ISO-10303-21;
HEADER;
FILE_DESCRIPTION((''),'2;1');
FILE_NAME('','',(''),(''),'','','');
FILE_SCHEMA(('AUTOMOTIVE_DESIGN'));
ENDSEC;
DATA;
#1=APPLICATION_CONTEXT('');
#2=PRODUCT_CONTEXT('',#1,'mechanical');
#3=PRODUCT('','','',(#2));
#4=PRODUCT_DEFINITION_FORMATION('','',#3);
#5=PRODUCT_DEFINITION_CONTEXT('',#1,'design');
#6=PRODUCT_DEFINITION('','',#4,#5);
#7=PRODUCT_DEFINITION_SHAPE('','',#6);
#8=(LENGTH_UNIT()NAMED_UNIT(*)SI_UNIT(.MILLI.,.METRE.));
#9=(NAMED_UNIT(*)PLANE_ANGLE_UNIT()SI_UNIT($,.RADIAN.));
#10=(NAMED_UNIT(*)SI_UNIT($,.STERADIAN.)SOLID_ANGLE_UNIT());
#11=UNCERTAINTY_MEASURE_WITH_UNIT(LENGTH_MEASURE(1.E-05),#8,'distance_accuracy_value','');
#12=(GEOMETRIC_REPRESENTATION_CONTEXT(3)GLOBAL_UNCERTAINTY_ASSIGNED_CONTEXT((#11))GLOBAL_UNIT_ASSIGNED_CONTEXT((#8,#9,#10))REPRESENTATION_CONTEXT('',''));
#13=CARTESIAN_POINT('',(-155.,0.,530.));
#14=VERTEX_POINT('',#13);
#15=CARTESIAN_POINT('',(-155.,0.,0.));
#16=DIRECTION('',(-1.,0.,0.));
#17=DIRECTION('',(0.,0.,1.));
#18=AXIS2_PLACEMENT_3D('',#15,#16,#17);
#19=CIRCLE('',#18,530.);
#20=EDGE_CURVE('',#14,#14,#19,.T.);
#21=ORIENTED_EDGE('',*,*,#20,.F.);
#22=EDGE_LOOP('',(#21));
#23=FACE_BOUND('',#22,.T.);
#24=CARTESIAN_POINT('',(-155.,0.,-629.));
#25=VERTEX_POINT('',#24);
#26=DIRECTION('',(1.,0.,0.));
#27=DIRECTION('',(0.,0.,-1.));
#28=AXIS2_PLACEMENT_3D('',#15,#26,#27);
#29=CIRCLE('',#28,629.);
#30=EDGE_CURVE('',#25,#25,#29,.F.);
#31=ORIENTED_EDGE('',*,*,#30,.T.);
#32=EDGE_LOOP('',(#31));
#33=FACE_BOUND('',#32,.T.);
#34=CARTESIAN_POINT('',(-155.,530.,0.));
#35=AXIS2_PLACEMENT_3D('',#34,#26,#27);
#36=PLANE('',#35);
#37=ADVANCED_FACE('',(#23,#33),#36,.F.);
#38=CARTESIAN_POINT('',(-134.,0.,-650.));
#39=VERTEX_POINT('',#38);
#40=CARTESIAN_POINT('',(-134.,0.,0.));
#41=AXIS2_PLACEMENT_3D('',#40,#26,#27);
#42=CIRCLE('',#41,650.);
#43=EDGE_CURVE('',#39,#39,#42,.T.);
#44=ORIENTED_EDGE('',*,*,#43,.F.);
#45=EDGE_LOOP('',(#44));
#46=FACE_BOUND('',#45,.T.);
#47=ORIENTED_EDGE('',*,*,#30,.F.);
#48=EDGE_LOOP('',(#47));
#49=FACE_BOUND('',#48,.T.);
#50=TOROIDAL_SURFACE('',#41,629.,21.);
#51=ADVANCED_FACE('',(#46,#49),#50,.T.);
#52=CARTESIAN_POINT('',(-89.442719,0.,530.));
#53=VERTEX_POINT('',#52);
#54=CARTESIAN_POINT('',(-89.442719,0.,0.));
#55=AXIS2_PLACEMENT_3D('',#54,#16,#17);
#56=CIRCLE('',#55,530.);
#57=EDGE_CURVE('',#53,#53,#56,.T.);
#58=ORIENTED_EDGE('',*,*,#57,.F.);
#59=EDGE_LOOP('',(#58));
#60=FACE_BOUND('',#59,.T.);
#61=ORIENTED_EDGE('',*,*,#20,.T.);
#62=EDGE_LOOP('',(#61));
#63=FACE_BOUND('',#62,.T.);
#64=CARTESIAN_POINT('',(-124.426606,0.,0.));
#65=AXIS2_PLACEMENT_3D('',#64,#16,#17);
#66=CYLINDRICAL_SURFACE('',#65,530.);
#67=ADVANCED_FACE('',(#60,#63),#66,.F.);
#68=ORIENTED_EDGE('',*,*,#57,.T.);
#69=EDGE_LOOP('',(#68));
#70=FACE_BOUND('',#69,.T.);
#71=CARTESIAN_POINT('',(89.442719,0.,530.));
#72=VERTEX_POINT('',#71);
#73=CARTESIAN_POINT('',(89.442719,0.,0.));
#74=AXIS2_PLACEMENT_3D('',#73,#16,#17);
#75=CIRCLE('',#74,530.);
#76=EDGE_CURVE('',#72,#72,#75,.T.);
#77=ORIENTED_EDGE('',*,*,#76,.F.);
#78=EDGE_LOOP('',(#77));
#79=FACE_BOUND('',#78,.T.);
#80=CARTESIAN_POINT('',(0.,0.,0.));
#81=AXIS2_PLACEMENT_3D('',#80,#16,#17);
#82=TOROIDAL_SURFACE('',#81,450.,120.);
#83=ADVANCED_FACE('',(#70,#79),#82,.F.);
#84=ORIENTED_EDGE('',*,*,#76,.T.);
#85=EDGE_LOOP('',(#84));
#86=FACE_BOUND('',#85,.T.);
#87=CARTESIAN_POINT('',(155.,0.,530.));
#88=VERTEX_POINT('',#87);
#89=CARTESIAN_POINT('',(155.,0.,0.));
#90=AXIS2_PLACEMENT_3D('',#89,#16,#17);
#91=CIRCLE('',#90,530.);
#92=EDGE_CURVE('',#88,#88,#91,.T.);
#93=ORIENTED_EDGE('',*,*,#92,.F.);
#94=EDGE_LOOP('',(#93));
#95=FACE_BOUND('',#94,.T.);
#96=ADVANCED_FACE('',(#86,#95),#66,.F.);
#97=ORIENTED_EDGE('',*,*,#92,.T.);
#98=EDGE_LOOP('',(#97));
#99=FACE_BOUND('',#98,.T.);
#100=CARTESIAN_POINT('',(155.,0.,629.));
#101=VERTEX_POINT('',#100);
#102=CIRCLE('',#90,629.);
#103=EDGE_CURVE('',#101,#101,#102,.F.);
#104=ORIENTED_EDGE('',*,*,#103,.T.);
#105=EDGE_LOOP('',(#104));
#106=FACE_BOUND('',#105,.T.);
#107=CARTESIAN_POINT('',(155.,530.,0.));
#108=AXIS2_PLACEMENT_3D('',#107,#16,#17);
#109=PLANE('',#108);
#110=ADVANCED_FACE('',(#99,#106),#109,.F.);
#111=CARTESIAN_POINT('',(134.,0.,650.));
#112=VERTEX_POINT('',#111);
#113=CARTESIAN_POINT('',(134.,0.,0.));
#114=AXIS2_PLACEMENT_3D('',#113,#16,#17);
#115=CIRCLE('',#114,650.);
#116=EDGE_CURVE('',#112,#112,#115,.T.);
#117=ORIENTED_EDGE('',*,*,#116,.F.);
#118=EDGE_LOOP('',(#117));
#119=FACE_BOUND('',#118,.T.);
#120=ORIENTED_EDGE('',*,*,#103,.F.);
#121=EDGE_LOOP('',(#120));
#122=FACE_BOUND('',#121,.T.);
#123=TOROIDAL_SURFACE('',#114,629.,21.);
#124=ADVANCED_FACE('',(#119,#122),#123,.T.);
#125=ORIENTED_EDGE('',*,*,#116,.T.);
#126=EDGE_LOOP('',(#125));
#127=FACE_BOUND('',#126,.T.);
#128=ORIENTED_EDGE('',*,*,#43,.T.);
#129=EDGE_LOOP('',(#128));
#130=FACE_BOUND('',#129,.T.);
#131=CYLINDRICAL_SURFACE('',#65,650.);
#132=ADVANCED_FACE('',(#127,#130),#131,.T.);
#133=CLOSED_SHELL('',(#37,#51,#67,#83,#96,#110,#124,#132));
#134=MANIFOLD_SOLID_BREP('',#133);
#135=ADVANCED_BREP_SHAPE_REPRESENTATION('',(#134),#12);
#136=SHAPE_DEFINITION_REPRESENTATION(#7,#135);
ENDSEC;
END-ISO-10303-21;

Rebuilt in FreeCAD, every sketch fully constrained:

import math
import FreeCAD as App
import Part
import Sketcher
from FreeCAD import Vector


def edges_at(feature, points):
    """Names of the edges that pass closest to the given points."""
    edges = feature.Shape.Edges
    near = lambda p: min(range(len(edges)), key=lambda i: edges[i].distToShape(Part.Vertex(*p))[0])
    return sorted({f"Edge{near(p) + 1}" for p in points})

doc = App.newDocument("Part")
body = doc.addObject("PartDesign::Body", "Body")

sketch1 = body.newObject("Sketcher::SketchObject", "Sketch")
sketch1.AttachmentSupport = (doc.getObject("XY_Plane"), [""])
sketch1.MapMode = "FlatFace"
sketch1.addGeometry([
    Part.LineSegment(Vector(89.442719, 530, 0), Vector(155, 530, 0)),
    Part.LineSegment(Vector(155, 530, 0), Vector(155, 650, 0)),
    Part.LineSegment(Vector(155, 650, 0), Vector(-155, 650, 0)),
    Part.LineSegment(Vector(-155, 650, 0), Vector(-155, 530, 0)),
    Part.LineSegment(Vector(-155, 530, 0), Vector(-89.442719, 530, 0)),
    Part.ArcOfCircle(Part.Circle(Vector(0, 450, 0), Vector(0, 0, 1), 120), math.radians(41.810315), math.radians(138.189685)),
], False)
sketch1.addConstraint([
    Sketcher.Constraint("Coincident", 0, 2, 1, 1),
    Sketcher.Constraint("Coincident", 1, 2, 2, 1),
    Sketcher.Constraint("Coincident", 2, 2, 3, 1),
    Sketcher.Constraint("Coincident", 3, 2, 4, 1),
    Sketcher.Constraint("Coincident", 4, 2, 5, 2),
    Sketcher.Constraint("Coincident", 5, 1, 0, 1),
    Sketcher.Constraint("Horizontal", 0),
    Sketcher.Constraint("Vertical", 1),
    Sketcher.Constraint("Horizontal", 2),
    Sketcher.Constraint("Vertical", 3),
    Sketcher.Constraint("Horizontal", 4),
    Sketcher.Constraint("Symmetric", 0, 2, 3, 2, -2),
    Sketcher.Constraint("PointOnObject", 5, 3, -2),
    Sketcher.Constraint("Radius", 5, 120.0),
    Sketcher.Constraint("DistanceX", 2, 2, 2, 1, 310.0),
    Sketcher.Constraint("DistanceY", 1, 1, 1, 2, 120.0),
    Sketcher.Constraint("DistanceY", -1, 1, 5, 3, 450.0),
    Sketcher.Constraint("DistanceY", -1, 1, 0, 2, 530.0),
])
revolution = body.newObject("PartDesign::Revolution", "Revolution")
revolution.Profile = sketch1
revolution.ReferenceAxis = (sketch1, ["H_Axis"])
revolution.Angle = 360
doc.recompute()

fillet = body.newObject("PartDesign::Fillet", "Fillet")
fillet.Base = (revolution, edges_at(revolution, [(155, 0, -650), (-155, 0, -650)]))
fillet.Radius = 21

doc.recompute()
